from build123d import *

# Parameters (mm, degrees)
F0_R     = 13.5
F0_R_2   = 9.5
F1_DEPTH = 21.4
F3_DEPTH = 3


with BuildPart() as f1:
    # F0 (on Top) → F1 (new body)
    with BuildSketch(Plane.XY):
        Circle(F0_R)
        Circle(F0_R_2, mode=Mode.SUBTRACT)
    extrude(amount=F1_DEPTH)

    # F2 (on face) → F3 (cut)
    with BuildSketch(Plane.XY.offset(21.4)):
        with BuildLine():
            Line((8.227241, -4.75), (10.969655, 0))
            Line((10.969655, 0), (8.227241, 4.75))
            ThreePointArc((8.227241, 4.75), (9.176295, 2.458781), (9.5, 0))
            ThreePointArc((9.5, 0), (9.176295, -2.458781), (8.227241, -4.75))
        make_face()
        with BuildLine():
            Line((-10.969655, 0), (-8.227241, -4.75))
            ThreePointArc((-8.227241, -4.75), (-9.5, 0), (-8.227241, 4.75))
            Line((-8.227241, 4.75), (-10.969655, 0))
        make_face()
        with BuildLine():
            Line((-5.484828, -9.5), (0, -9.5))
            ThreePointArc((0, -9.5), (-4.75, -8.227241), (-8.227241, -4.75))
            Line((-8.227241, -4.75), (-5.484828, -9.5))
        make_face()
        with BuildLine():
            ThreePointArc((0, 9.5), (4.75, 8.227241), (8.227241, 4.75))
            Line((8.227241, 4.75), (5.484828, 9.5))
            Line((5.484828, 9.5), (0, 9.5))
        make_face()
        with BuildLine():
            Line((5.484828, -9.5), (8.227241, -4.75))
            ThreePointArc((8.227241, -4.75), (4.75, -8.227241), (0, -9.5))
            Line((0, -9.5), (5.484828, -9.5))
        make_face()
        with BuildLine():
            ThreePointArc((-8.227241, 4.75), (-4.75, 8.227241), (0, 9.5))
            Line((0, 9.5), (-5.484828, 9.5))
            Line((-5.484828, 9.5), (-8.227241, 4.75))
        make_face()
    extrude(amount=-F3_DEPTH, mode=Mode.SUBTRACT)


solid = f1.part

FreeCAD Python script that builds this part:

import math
import FreeCAD as App
import Part
import Sketcher

doc = App.newDocument("Part")
params = doc.addObject("Spreadsheet::Sheet", "Params")
for row, (alias, value) in enumerate([
    ("sketch1_diameter", "27 mm"),
    ("sketch1_diameter2", "19 mm"),
    ("pad1_length", "21.4 mm"),
    ("sketch2_radius", "9.500001 mm"),
    ("pocket1_length", "3 mm"),
], start=1):
    params.set(f"A{row}", alias)
    params.set(f"B{row}", "=" + value)
    params.setAlias(f"B{row}", alias)

body = doc.addObject("PartDesign::Body", "Body")

sketch1 = doc.addObject("Sketcher::SketchObject", "Sketch")
body.addObject(sketch1)
sketch1.AttachmentSupport = (doc.XY_Plane, [""])
sketch1.MapMode = "FlatFace"
sketch1.addGeometry([
    Part.Circle(App.Vector(0, 0, 0), App.Vector(0, 0, 1), 14),
    Part.Circle(App.Vector(0, 0, 0), App.Vector(0, 0, 1), 10),
], False)
sketch1.addConstraint([
    Sketcher.Constraint("Coincident", 0, 3, -1, 1),
    Sketcher.Constraint("Coincident", 1, 3, -1, 1),
    Sketcher.Constraint("Diameter", 0, 27.0),
    Sketcher.Constraint("Diameter", 1, 19.0),
])
sketch1.setExpression("Constraints[2]", "Params.sketch1_diameter")
sketch1.setExpression("Constraints[3]", "Params.sketch1_diameter2")
pad1 = doc.addObject("PartDesign::Pad", "Pad")
body.addObject(pad1)
pad1.Profile = sketch1
pad1.setExpression("Length", "Params.pad1_length")

sketch2 = doc.addObject("Sketcher::SketchObject", "Sketch001")
body.addObject(sketch2)
sketch2.AttachmentSupport = (doc.XY_Plane, [""])
sketch2.MapMode = "FlatFace"
sketch2.AttachmentOffset = App.Placement(App.Vector(0, 0, 21.4), App.Rotation())
sketch2.addGeometry([
    Part.LineSegment(App.Vector(8.2, -4.8, 0), App.Vector(11, 0, 0)),
    Part.LineSegment(App.Vector(11, 0, 0), App.Vector(8.2, 4.8, 0)),
    Part.ArcOfCircle(Part.Circle(App.Vector(0, 0, 0), App.Vector(0, 0, 1), 9.5), math.radians(0), math.radians(30)),
    Part.ArcOfCircle(Part.Circle(App.Vector(0, 0, 0), App.Vector(0, 0, 1), 9.5), math.radians(-30), math.radians(0)),
    Part.LineSegment(App.Vector(-11, 0, 0), App.Vector(-8.2, -4.8, 0)),
    Part.ArcOfCircle(Part.Circle(App.Vector(0, 0, 0), App.Vector(0, 0, 1), 9.5), math.radians(150), math.radians(210)),
    Part.LineSegment(App.Vector(-8.2, 4.8, 0), App.Vector(-11, 0, 0)),
    Part.LineSegment(App.Vector(-5.5, -9.5, 0), App.Vector(0, -9.5, 0)),
    Part.ArcOfCircle(Part.Circle(App.Vector(0, 0, 0), App.Vector(0, 0, 1), 9.5), math.radians(-150), math.radians(-90)),
    Part.LineSegment(App.Vector(-8.2, -4.8, 0), App.Vector(-5.5, -9.5, 0)),
    Part.ArcOfCircle(Part.Circle(App.Vector(0, 0, 0), App.Vector(0, 0, 1), 9.5), math.radians(30), math.radians(90)),
    Part.LineSegment(App.Vector(8.2, 4.8, 0), App.Vector(5.5, 9.5, 0)),
    Part.LineSegment(App.Vector(5.5, 9.5, 0), App.Vector(0, 9.5, 0)),
    Part.LineSegment(App.Vector(5.5, -9.5, 0), App.Vector(8.2, -4.8, 0)),
    Part.ArcOfCircle(Part.Circle(App.Vector(0, 0, 0), App.Vector(0, 0, 1), 9.5), math.radians(-90), math.radians(-30)),
    Part.LineSegment(App.Vector(0, -9.5, 0), App.Vector(5.5, -9.5, 0)),
    Part.ArcOfCircle(Part.Circle(App.Vector(0, 0, 0), App.Vector(0, 0, 1), 9.5), math.radians(90), math.radians(150)),
    Part.LineSegment(App.Vector(0, 9.5, 0), App.Vector(-5.5, 9.5, 0)),
    Part.LineSegment(App.Vector(-5.5, 9.5, 0), App.Vector(-8.2, 4.8, 0)),
], False)
sketch2.addConstraint([
    Sketcher.Constraint("Coincident", 0, 2, 1, 1),
    Sketcher.Constraint("Tangent", 1, 2, 2, 2),
    Sketcher.Constraint("Tangent", 2, 1, 3, 2),
    Sketcher.Constraint("Tangent", 3, 1, 0, 1),
    Sketcher.Constraint("Tangent", 4, 2, 5, 2),
    Sketcher.Constraint("Tangent", 5, 1, 6, 1),
    Sketcher.Constraint("Coincident", 6, 2, 4, 1),
    Sketcher.Constraint("Tangent", 7, 2, 8, 2),
    Sketcher.Constraint("Tangent", 8, 1, 9, 1),
    Sketcher.Constraint("Coincident", 9, 2, 7, 1),
    Sketcher.Constraint("Tangent", 10, 1, 11, 1),
    Sketcher.Constraint("Coincident", 11, 2, 12, 1),
    Sketcher.Constraint("Tangent", 12, 2, 10, 2),
    Sketcher.Constraint("Tangent", 13, 2, 14, 2),
    Sketcher.Constraint("Tangent", 14, 1, 15, 1),
    Sketcher.Constraint("Coincident", 15, 2, 13, 1),
    Sketcher.Constraint("Tangent", 16, 1, 17, 1),
    Sketcher.Constraint("Coincident", 17, 2, 18, 1),
    Sketcher.Constraint("Tangent", 18, 2, 16, 2),
    Sketcher.Constraint("Horizontal", 7),
    Sketcher.Constraint("Horizontal", 12),
    Sketcher.Constraint("Horizontal", 15),
    Sketcher.Constraint("Horizontal", 17),
    Sketcher.Constraint("Coincident", 2, 3, -1, 1),
    Sketcher.Constraint("Coincident", 5, 3, -1, 1),
    Sketcher.Constraint("Coincident", 8, 3, -1, 1),
    Sketcher.Constraint("Coincident", 10, 3, -1, 1),
    Sketcher.Constraint("Coincident", 14, 3, -1, 1),
    Sketcher.Constraint("Coincident", 16, 3, -1, 1),
    Sketcher.Constraint("Coincident", 8, 1, 4, 2),
    Sketcher.Constraint("Coincident", 10, 1, 1, 2),
    Sketcher.Constraint("Coincident", 13, 2, 3, 1),
    Sketcher.Constraint("Coincident", 18, 2, 5, 1),
    Sketcher.Constraint("Equal", 2, 3),
    Sketcher.Constraint("Equal", 8, 10),
    Sketcher.Constraint("Symmetric", 0, 2, 6, 2, -1, 1),
    Sketcher.Constraint("PointOnObject", 0, 2, -1),
    Sketcher.Constraint("PointOnObject", 2, 1, -1),
    Sketcher.Constraint("Equal", 6, 9),
    Sketcher.Constraint("Radius", 8, 9.500001),
])
sketch2.setExpression("Constraints[39]", "Params.sketch2_radius")
pocket1 = doc.addObject("PartDesign::Pocket", "Pocket")
body.addObject(pocket1)
pocket1.Profile = sketch2
pocket1.setExpression("Length", "Params.pocket1_length")

doc.recompute()
